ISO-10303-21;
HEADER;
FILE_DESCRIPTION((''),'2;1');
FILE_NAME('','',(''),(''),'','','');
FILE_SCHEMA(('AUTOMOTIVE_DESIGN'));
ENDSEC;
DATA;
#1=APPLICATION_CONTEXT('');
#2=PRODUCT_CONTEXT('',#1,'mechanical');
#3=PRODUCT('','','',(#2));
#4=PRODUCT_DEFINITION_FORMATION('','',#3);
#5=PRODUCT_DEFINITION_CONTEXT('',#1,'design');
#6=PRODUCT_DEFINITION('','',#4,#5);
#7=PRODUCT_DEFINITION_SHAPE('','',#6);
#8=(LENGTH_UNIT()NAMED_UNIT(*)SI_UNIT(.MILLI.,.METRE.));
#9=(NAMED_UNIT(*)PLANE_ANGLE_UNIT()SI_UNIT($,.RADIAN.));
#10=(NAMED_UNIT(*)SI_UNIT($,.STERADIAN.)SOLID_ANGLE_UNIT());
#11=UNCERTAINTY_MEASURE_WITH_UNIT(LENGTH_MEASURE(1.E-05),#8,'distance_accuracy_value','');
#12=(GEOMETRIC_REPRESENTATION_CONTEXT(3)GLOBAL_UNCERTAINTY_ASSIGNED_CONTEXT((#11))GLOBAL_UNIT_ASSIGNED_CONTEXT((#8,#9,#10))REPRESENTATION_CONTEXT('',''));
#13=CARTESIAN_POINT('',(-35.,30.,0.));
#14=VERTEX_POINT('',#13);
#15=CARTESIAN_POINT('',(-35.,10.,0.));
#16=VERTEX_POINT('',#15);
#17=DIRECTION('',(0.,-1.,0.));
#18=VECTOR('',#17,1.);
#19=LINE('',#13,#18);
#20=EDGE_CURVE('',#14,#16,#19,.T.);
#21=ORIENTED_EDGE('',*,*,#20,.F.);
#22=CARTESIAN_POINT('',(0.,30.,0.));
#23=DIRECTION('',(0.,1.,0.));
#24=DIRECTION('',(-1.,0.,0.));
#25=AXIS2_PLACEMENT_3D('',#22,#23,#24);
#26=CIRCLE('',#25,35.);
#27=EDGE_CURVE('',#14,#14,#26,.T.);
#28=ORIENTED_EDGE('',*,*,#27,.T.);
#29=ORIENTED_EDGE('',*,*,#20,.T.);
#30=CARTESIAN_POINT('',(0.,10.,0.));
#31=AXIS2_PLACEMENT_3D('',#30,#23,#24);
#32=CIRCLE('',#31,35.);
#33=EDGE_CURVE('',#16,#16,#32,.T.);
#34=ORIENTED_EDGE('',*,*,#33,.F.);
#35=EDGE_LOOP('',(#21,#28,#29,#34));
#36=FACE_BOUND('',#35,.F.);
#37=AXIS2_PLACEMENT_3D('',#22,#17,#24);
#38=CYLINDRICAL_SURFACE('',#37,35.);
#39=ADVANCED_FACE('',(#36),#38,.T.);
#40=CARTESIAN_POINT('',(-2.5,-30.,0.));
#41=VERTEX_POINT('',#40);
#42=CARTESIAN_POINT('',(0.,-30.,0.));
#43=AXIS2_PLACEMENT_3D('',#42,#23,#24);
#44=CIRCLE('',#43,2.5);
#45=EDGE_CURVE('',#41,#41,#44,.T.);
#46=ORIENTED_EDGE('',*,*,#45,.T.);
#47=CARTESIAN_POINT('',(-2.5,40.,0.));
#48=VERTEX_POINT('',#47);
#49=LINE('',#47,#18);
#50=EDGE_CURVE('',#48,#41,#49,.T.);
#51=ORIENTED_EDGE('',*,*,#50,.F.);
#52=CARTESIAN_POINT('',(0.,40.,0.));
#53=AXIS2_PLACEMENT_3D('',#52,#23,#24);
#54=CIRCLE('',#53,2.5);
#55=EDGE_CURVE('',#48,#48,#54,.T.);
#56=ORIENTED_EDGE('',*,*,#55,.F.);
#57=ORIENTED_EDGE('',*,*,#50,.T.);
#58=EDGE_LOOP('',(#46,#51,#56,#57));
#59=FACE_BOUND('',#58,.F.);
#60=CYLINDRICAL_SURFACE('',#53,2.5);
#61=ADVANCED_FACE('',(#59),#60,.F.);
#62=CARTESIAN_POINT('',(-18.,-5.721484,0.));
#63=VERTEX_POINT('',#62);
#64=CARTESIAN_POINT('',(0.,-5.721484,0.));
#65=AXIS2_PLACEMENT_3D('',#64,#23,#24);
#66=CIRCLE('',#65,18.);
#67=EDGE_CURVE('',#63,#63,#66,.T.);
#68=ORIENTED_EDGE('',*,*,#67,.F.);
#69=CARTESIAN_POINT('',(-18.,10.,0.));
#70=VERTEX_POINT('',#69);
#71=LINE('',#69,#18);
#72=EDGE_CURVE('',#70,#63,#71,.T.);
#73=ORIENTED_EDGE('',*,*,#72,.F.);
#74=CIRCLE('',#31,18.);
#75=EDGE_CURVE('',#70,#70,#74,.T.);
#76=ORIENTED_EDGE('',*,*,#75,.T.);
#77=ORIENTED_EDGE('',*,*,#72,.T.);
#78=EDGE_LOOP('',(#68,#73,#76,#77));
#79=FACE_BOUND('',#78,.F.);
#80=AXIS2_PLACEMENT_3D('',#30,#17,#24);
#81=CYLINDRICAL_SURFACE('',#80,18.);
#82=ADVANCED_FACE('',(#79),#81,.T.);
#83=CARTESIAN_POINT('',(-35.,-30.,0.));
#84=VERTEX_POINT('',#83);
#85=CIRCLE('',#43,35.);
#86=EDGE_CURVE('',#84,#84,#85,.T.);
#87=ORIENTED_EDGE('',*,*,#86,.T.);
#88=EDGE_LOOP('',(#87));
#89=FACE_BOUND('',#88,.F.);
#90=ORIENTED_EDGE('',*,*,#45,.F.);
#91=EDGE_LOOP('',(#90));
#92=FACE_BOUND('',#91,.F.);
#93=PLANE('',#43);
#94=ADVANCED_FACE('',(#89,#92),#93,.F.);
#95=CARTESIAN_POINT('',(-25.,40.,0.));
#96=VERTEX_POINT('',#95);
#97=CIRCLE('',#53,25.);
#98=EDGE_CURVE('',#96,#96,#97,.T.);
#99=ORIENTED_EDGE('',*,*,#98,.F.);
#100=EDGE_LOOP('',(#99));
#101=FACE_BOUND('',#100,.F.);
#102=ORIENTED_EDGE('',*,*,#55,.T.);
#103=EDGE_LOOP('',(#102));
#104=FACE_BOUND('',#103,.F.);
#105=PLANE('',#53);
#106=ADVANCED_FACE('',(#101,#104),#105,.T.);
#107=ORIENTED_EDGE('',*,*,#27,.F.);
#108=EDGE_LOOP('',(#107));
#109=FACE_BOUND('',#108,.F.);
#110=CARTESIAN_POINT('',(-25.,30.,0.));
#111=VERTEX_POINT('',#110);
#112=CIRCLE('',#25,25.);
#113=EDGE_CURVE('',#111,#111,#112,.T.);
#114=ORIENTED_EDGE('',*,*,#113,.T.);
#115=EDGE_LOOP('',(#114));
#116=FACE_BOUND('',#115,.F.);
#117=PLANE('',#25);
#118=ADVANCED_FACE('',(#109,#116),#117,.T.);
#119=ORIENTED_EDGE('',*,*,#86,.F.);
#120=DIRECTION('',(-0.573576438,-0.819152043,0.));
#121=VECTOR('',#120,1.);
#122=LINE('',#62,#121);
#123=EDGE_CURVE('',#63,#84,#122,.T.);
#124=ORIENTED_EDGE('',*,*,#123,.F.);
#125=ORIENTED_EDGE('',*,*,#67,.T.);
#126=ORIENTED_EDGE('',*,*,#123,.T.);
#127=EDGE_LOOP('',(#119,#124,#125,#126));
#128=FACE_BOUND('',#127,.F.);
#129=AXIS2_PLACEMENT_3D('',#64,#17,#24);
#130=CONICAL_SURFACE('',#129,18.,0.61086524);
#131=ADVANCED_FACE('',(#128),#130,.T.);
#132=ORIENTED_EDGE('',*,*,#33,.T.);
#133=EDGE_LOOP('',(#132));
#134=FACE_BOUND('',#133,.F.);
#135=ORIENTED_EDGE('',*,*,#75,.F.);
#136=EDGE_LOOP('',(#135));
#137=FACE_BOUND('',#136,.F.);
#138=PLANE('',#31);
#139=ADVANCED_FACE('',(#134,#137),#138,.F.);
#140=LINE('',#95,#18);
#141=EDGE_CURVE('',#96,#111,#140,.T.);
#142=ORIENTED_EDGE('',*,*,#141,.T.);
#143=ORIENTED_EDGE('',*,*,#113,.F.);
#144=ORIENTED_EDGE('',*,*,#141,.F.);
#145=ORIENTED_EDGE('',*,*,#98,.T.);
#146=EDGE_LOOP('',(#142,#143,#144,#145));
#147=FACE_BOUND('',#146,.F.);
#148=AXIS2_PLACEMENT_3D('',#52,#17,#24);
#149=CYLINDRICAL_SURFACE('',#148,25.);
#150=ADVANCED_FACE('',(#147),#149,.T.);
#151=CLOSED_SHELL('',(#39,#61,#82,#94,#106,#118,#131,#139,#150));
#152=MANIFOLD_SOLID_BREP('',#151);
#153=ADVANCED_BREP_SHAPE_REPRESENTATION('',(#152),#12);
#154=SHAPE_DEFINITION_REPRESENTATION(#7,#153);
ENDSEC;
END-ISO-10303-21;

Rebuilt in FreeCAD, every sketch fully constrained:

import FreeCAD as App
import Part
import Sketcher

V = App.Vector
Q = App.Units.Quantity

doc = App.newDocument("Part")
params = doc.addObject("Spreadsheet::Sheet", "Params")
for row, (alias, value) in enumerate([
    ("sketch1_width", "25 mm"),
    ("sketch1_width2", "10 mm"),
    ("sketch1_width3", "17 mm"),
    ("sketch1_height", "70 mm"),
    ("sketch1_height2", "20 mm"),
    ("revolution_angle", "360 deg"),
    ("sketch2_diameter", "5 mm"),
], start=1):
    params.set(f"A{row}", alias)
    params.set(f"B{row}", "=" + value)
    params.setAlias(f"B{row}", alias)

body = doc.addObject("PartDesign::Body", "Body")

# Sketch on XY plane
sketch1 = doc.addObject("Sketcher::SketchObject", "Sketch")
body.addObject(sketch1)
sketch1.AttachmentSupport = (doc.XY_Plane, [""])
sketch1.MapMode = "FlatFace"
sketch1.addGeometry([
    Part.LineSegment(V(0, -30, 0), V(0, 40, 0)),  # 0
    Part.LineSegment(V(0, 40, 0), V(-25, 40, 0)),  # 1
    Part.LineSegment(V(-25, 40, 0), V(-25, 30, 0)),  # 2
    Part.LineSegment(V(-25, 30, 0), V(-35, 30, 0)),  # 3
    Part.LineSegment(V(-35, 30, 0), V(-35, 10, 0)),  # 4
    Part.LineSegment(V(-35, 10, 0), V(-18, 10, 0)),  # 5
    Part.LineSegment(V(-18, 10, 0), V(-18, -6, 0)),  # 6
    Part.LineSegment(V(-18, -6, 0), V(-35, -30, 0)),  # 7
    Part.LineSegment(V(-35, -30, 0), V(0, -30, 0)),  # 8
], False)
sketch1.addConstraint([
    Sketcher.Constraint("Coincident", 0, 2, 1, 1),
    Sketcher.Constraint("Coincident", 1, 2, 2, 1),
    Sketcher.Constraint("Coincident", 2, 2, 3, 1),
    Sketcher.Constraint("Coincident", 3, 2, 4, 1),
    Sketcher.Constraint("Coincident", 4, 2, 5, 1),
    Sketcher.Constraint("Coincident", 5, 2, 6, 1),
    Sketcher.Constraint("Coincident", 6, 2, 7, 1),
    Sketcher.Constraint("Coincident", 7, 2, 8, 1),
    Sketcher.Constraint("Coincident", 8, 2, 0, 1),
    Sketcher.Constraint("Vertical", 0),
    Sketcher.Constraint("Horizontal", 1),
    Sketcher.Constraint("Vertical", 2),
    Sketcher.Constraint("Horizontal", 3),
    Sketcher.Constraint("Vertical", 4),
    Sketcher.Constraint("Horizontal", 5),
    Sketcher.Constraint("Vertical", 6),
    Sketcher.Constraint("Horizontal", 8),
    Sketcher.Constraint("Symmetric", 3, 2, 7, 2, -1),
    Sketcher.Constraint("PointOnObject", 0, 2, -2),
    Sketcher.Constraint("Equal", 3, 2),
    Sketcher.Constraint("DistanceX", 1, 2, 1, 1, 25.0),
    Sketcher.Constraint("DistanceX", 3, 2, 3, 1, 10.0),
    Sketcher.Constraint("DistanceX", 5, 1, 5, 2, 17.0),
    Sketcher.Constraint("DistanceY", 0, 1, 0, 2, 70.0),
    Sketcher.Constraint("DistanceY", 4, 2, 4, 1, 20.0),
    Sketcher.Constraint("Angle", 7, Q("-125 deg")),
])
sketch1.setExpression("Constraints[20]", "Params.sketch1_width")
sketch1.setExpression("Constraints[21]", "Params.sketch1_width2")
sketch1.setExpression("Constraints[22]", "Params.sketch1_width3")
sketch1.setExpression("Constraints[23]", "Params.sketch1_height")
sketch1.setExpression("Constraints[24]", "Params.sketch1_height2")
revolution = doc.addObject("PartDesign::Revolution", "Revolution")
body.addObject(revolution)
revolution.Profile = sketch1
revolution.ReferenceAxis = (sketch1, ["V_Axis"])
revolution.setExpression("Angle", "Params.revolution_angle")

# Sketch on XZ plane
sketch2 = doc.addObject("Sketcher::SketchObject", "Sketch001")
body.addObject(sketch2)
sketch2.AttachmentSupport = (doc.XZ_Plane, [""])
sketch2.MapMode = "FlatFace"
sketch2.AttachmentOffset = App.Placement(V(0, 0, -40), App.Rotation())
sketch2.addGeometry(Part.Circle(V(0, 0, 0), V(0, 0, 1), 2.5), False)
sketch2.addConstraint([
    Sketcher.Constraint("Coincident", 0, 3, -1, 1),
    Sketcher.Constraint("Diameter", 0, 5.0),
])
sketch2.setExpression("Constraints[1]", "Params.sketch2_diameter")
pocket1 = doc.addObject("PartDesign::Pocket", "Pocket")
body.addObject(pocket1)
pocket1.Profile = sketch2
pocket1.Type = "ThroughAll"
pocket1.Reversed = True

doc.recompute()
